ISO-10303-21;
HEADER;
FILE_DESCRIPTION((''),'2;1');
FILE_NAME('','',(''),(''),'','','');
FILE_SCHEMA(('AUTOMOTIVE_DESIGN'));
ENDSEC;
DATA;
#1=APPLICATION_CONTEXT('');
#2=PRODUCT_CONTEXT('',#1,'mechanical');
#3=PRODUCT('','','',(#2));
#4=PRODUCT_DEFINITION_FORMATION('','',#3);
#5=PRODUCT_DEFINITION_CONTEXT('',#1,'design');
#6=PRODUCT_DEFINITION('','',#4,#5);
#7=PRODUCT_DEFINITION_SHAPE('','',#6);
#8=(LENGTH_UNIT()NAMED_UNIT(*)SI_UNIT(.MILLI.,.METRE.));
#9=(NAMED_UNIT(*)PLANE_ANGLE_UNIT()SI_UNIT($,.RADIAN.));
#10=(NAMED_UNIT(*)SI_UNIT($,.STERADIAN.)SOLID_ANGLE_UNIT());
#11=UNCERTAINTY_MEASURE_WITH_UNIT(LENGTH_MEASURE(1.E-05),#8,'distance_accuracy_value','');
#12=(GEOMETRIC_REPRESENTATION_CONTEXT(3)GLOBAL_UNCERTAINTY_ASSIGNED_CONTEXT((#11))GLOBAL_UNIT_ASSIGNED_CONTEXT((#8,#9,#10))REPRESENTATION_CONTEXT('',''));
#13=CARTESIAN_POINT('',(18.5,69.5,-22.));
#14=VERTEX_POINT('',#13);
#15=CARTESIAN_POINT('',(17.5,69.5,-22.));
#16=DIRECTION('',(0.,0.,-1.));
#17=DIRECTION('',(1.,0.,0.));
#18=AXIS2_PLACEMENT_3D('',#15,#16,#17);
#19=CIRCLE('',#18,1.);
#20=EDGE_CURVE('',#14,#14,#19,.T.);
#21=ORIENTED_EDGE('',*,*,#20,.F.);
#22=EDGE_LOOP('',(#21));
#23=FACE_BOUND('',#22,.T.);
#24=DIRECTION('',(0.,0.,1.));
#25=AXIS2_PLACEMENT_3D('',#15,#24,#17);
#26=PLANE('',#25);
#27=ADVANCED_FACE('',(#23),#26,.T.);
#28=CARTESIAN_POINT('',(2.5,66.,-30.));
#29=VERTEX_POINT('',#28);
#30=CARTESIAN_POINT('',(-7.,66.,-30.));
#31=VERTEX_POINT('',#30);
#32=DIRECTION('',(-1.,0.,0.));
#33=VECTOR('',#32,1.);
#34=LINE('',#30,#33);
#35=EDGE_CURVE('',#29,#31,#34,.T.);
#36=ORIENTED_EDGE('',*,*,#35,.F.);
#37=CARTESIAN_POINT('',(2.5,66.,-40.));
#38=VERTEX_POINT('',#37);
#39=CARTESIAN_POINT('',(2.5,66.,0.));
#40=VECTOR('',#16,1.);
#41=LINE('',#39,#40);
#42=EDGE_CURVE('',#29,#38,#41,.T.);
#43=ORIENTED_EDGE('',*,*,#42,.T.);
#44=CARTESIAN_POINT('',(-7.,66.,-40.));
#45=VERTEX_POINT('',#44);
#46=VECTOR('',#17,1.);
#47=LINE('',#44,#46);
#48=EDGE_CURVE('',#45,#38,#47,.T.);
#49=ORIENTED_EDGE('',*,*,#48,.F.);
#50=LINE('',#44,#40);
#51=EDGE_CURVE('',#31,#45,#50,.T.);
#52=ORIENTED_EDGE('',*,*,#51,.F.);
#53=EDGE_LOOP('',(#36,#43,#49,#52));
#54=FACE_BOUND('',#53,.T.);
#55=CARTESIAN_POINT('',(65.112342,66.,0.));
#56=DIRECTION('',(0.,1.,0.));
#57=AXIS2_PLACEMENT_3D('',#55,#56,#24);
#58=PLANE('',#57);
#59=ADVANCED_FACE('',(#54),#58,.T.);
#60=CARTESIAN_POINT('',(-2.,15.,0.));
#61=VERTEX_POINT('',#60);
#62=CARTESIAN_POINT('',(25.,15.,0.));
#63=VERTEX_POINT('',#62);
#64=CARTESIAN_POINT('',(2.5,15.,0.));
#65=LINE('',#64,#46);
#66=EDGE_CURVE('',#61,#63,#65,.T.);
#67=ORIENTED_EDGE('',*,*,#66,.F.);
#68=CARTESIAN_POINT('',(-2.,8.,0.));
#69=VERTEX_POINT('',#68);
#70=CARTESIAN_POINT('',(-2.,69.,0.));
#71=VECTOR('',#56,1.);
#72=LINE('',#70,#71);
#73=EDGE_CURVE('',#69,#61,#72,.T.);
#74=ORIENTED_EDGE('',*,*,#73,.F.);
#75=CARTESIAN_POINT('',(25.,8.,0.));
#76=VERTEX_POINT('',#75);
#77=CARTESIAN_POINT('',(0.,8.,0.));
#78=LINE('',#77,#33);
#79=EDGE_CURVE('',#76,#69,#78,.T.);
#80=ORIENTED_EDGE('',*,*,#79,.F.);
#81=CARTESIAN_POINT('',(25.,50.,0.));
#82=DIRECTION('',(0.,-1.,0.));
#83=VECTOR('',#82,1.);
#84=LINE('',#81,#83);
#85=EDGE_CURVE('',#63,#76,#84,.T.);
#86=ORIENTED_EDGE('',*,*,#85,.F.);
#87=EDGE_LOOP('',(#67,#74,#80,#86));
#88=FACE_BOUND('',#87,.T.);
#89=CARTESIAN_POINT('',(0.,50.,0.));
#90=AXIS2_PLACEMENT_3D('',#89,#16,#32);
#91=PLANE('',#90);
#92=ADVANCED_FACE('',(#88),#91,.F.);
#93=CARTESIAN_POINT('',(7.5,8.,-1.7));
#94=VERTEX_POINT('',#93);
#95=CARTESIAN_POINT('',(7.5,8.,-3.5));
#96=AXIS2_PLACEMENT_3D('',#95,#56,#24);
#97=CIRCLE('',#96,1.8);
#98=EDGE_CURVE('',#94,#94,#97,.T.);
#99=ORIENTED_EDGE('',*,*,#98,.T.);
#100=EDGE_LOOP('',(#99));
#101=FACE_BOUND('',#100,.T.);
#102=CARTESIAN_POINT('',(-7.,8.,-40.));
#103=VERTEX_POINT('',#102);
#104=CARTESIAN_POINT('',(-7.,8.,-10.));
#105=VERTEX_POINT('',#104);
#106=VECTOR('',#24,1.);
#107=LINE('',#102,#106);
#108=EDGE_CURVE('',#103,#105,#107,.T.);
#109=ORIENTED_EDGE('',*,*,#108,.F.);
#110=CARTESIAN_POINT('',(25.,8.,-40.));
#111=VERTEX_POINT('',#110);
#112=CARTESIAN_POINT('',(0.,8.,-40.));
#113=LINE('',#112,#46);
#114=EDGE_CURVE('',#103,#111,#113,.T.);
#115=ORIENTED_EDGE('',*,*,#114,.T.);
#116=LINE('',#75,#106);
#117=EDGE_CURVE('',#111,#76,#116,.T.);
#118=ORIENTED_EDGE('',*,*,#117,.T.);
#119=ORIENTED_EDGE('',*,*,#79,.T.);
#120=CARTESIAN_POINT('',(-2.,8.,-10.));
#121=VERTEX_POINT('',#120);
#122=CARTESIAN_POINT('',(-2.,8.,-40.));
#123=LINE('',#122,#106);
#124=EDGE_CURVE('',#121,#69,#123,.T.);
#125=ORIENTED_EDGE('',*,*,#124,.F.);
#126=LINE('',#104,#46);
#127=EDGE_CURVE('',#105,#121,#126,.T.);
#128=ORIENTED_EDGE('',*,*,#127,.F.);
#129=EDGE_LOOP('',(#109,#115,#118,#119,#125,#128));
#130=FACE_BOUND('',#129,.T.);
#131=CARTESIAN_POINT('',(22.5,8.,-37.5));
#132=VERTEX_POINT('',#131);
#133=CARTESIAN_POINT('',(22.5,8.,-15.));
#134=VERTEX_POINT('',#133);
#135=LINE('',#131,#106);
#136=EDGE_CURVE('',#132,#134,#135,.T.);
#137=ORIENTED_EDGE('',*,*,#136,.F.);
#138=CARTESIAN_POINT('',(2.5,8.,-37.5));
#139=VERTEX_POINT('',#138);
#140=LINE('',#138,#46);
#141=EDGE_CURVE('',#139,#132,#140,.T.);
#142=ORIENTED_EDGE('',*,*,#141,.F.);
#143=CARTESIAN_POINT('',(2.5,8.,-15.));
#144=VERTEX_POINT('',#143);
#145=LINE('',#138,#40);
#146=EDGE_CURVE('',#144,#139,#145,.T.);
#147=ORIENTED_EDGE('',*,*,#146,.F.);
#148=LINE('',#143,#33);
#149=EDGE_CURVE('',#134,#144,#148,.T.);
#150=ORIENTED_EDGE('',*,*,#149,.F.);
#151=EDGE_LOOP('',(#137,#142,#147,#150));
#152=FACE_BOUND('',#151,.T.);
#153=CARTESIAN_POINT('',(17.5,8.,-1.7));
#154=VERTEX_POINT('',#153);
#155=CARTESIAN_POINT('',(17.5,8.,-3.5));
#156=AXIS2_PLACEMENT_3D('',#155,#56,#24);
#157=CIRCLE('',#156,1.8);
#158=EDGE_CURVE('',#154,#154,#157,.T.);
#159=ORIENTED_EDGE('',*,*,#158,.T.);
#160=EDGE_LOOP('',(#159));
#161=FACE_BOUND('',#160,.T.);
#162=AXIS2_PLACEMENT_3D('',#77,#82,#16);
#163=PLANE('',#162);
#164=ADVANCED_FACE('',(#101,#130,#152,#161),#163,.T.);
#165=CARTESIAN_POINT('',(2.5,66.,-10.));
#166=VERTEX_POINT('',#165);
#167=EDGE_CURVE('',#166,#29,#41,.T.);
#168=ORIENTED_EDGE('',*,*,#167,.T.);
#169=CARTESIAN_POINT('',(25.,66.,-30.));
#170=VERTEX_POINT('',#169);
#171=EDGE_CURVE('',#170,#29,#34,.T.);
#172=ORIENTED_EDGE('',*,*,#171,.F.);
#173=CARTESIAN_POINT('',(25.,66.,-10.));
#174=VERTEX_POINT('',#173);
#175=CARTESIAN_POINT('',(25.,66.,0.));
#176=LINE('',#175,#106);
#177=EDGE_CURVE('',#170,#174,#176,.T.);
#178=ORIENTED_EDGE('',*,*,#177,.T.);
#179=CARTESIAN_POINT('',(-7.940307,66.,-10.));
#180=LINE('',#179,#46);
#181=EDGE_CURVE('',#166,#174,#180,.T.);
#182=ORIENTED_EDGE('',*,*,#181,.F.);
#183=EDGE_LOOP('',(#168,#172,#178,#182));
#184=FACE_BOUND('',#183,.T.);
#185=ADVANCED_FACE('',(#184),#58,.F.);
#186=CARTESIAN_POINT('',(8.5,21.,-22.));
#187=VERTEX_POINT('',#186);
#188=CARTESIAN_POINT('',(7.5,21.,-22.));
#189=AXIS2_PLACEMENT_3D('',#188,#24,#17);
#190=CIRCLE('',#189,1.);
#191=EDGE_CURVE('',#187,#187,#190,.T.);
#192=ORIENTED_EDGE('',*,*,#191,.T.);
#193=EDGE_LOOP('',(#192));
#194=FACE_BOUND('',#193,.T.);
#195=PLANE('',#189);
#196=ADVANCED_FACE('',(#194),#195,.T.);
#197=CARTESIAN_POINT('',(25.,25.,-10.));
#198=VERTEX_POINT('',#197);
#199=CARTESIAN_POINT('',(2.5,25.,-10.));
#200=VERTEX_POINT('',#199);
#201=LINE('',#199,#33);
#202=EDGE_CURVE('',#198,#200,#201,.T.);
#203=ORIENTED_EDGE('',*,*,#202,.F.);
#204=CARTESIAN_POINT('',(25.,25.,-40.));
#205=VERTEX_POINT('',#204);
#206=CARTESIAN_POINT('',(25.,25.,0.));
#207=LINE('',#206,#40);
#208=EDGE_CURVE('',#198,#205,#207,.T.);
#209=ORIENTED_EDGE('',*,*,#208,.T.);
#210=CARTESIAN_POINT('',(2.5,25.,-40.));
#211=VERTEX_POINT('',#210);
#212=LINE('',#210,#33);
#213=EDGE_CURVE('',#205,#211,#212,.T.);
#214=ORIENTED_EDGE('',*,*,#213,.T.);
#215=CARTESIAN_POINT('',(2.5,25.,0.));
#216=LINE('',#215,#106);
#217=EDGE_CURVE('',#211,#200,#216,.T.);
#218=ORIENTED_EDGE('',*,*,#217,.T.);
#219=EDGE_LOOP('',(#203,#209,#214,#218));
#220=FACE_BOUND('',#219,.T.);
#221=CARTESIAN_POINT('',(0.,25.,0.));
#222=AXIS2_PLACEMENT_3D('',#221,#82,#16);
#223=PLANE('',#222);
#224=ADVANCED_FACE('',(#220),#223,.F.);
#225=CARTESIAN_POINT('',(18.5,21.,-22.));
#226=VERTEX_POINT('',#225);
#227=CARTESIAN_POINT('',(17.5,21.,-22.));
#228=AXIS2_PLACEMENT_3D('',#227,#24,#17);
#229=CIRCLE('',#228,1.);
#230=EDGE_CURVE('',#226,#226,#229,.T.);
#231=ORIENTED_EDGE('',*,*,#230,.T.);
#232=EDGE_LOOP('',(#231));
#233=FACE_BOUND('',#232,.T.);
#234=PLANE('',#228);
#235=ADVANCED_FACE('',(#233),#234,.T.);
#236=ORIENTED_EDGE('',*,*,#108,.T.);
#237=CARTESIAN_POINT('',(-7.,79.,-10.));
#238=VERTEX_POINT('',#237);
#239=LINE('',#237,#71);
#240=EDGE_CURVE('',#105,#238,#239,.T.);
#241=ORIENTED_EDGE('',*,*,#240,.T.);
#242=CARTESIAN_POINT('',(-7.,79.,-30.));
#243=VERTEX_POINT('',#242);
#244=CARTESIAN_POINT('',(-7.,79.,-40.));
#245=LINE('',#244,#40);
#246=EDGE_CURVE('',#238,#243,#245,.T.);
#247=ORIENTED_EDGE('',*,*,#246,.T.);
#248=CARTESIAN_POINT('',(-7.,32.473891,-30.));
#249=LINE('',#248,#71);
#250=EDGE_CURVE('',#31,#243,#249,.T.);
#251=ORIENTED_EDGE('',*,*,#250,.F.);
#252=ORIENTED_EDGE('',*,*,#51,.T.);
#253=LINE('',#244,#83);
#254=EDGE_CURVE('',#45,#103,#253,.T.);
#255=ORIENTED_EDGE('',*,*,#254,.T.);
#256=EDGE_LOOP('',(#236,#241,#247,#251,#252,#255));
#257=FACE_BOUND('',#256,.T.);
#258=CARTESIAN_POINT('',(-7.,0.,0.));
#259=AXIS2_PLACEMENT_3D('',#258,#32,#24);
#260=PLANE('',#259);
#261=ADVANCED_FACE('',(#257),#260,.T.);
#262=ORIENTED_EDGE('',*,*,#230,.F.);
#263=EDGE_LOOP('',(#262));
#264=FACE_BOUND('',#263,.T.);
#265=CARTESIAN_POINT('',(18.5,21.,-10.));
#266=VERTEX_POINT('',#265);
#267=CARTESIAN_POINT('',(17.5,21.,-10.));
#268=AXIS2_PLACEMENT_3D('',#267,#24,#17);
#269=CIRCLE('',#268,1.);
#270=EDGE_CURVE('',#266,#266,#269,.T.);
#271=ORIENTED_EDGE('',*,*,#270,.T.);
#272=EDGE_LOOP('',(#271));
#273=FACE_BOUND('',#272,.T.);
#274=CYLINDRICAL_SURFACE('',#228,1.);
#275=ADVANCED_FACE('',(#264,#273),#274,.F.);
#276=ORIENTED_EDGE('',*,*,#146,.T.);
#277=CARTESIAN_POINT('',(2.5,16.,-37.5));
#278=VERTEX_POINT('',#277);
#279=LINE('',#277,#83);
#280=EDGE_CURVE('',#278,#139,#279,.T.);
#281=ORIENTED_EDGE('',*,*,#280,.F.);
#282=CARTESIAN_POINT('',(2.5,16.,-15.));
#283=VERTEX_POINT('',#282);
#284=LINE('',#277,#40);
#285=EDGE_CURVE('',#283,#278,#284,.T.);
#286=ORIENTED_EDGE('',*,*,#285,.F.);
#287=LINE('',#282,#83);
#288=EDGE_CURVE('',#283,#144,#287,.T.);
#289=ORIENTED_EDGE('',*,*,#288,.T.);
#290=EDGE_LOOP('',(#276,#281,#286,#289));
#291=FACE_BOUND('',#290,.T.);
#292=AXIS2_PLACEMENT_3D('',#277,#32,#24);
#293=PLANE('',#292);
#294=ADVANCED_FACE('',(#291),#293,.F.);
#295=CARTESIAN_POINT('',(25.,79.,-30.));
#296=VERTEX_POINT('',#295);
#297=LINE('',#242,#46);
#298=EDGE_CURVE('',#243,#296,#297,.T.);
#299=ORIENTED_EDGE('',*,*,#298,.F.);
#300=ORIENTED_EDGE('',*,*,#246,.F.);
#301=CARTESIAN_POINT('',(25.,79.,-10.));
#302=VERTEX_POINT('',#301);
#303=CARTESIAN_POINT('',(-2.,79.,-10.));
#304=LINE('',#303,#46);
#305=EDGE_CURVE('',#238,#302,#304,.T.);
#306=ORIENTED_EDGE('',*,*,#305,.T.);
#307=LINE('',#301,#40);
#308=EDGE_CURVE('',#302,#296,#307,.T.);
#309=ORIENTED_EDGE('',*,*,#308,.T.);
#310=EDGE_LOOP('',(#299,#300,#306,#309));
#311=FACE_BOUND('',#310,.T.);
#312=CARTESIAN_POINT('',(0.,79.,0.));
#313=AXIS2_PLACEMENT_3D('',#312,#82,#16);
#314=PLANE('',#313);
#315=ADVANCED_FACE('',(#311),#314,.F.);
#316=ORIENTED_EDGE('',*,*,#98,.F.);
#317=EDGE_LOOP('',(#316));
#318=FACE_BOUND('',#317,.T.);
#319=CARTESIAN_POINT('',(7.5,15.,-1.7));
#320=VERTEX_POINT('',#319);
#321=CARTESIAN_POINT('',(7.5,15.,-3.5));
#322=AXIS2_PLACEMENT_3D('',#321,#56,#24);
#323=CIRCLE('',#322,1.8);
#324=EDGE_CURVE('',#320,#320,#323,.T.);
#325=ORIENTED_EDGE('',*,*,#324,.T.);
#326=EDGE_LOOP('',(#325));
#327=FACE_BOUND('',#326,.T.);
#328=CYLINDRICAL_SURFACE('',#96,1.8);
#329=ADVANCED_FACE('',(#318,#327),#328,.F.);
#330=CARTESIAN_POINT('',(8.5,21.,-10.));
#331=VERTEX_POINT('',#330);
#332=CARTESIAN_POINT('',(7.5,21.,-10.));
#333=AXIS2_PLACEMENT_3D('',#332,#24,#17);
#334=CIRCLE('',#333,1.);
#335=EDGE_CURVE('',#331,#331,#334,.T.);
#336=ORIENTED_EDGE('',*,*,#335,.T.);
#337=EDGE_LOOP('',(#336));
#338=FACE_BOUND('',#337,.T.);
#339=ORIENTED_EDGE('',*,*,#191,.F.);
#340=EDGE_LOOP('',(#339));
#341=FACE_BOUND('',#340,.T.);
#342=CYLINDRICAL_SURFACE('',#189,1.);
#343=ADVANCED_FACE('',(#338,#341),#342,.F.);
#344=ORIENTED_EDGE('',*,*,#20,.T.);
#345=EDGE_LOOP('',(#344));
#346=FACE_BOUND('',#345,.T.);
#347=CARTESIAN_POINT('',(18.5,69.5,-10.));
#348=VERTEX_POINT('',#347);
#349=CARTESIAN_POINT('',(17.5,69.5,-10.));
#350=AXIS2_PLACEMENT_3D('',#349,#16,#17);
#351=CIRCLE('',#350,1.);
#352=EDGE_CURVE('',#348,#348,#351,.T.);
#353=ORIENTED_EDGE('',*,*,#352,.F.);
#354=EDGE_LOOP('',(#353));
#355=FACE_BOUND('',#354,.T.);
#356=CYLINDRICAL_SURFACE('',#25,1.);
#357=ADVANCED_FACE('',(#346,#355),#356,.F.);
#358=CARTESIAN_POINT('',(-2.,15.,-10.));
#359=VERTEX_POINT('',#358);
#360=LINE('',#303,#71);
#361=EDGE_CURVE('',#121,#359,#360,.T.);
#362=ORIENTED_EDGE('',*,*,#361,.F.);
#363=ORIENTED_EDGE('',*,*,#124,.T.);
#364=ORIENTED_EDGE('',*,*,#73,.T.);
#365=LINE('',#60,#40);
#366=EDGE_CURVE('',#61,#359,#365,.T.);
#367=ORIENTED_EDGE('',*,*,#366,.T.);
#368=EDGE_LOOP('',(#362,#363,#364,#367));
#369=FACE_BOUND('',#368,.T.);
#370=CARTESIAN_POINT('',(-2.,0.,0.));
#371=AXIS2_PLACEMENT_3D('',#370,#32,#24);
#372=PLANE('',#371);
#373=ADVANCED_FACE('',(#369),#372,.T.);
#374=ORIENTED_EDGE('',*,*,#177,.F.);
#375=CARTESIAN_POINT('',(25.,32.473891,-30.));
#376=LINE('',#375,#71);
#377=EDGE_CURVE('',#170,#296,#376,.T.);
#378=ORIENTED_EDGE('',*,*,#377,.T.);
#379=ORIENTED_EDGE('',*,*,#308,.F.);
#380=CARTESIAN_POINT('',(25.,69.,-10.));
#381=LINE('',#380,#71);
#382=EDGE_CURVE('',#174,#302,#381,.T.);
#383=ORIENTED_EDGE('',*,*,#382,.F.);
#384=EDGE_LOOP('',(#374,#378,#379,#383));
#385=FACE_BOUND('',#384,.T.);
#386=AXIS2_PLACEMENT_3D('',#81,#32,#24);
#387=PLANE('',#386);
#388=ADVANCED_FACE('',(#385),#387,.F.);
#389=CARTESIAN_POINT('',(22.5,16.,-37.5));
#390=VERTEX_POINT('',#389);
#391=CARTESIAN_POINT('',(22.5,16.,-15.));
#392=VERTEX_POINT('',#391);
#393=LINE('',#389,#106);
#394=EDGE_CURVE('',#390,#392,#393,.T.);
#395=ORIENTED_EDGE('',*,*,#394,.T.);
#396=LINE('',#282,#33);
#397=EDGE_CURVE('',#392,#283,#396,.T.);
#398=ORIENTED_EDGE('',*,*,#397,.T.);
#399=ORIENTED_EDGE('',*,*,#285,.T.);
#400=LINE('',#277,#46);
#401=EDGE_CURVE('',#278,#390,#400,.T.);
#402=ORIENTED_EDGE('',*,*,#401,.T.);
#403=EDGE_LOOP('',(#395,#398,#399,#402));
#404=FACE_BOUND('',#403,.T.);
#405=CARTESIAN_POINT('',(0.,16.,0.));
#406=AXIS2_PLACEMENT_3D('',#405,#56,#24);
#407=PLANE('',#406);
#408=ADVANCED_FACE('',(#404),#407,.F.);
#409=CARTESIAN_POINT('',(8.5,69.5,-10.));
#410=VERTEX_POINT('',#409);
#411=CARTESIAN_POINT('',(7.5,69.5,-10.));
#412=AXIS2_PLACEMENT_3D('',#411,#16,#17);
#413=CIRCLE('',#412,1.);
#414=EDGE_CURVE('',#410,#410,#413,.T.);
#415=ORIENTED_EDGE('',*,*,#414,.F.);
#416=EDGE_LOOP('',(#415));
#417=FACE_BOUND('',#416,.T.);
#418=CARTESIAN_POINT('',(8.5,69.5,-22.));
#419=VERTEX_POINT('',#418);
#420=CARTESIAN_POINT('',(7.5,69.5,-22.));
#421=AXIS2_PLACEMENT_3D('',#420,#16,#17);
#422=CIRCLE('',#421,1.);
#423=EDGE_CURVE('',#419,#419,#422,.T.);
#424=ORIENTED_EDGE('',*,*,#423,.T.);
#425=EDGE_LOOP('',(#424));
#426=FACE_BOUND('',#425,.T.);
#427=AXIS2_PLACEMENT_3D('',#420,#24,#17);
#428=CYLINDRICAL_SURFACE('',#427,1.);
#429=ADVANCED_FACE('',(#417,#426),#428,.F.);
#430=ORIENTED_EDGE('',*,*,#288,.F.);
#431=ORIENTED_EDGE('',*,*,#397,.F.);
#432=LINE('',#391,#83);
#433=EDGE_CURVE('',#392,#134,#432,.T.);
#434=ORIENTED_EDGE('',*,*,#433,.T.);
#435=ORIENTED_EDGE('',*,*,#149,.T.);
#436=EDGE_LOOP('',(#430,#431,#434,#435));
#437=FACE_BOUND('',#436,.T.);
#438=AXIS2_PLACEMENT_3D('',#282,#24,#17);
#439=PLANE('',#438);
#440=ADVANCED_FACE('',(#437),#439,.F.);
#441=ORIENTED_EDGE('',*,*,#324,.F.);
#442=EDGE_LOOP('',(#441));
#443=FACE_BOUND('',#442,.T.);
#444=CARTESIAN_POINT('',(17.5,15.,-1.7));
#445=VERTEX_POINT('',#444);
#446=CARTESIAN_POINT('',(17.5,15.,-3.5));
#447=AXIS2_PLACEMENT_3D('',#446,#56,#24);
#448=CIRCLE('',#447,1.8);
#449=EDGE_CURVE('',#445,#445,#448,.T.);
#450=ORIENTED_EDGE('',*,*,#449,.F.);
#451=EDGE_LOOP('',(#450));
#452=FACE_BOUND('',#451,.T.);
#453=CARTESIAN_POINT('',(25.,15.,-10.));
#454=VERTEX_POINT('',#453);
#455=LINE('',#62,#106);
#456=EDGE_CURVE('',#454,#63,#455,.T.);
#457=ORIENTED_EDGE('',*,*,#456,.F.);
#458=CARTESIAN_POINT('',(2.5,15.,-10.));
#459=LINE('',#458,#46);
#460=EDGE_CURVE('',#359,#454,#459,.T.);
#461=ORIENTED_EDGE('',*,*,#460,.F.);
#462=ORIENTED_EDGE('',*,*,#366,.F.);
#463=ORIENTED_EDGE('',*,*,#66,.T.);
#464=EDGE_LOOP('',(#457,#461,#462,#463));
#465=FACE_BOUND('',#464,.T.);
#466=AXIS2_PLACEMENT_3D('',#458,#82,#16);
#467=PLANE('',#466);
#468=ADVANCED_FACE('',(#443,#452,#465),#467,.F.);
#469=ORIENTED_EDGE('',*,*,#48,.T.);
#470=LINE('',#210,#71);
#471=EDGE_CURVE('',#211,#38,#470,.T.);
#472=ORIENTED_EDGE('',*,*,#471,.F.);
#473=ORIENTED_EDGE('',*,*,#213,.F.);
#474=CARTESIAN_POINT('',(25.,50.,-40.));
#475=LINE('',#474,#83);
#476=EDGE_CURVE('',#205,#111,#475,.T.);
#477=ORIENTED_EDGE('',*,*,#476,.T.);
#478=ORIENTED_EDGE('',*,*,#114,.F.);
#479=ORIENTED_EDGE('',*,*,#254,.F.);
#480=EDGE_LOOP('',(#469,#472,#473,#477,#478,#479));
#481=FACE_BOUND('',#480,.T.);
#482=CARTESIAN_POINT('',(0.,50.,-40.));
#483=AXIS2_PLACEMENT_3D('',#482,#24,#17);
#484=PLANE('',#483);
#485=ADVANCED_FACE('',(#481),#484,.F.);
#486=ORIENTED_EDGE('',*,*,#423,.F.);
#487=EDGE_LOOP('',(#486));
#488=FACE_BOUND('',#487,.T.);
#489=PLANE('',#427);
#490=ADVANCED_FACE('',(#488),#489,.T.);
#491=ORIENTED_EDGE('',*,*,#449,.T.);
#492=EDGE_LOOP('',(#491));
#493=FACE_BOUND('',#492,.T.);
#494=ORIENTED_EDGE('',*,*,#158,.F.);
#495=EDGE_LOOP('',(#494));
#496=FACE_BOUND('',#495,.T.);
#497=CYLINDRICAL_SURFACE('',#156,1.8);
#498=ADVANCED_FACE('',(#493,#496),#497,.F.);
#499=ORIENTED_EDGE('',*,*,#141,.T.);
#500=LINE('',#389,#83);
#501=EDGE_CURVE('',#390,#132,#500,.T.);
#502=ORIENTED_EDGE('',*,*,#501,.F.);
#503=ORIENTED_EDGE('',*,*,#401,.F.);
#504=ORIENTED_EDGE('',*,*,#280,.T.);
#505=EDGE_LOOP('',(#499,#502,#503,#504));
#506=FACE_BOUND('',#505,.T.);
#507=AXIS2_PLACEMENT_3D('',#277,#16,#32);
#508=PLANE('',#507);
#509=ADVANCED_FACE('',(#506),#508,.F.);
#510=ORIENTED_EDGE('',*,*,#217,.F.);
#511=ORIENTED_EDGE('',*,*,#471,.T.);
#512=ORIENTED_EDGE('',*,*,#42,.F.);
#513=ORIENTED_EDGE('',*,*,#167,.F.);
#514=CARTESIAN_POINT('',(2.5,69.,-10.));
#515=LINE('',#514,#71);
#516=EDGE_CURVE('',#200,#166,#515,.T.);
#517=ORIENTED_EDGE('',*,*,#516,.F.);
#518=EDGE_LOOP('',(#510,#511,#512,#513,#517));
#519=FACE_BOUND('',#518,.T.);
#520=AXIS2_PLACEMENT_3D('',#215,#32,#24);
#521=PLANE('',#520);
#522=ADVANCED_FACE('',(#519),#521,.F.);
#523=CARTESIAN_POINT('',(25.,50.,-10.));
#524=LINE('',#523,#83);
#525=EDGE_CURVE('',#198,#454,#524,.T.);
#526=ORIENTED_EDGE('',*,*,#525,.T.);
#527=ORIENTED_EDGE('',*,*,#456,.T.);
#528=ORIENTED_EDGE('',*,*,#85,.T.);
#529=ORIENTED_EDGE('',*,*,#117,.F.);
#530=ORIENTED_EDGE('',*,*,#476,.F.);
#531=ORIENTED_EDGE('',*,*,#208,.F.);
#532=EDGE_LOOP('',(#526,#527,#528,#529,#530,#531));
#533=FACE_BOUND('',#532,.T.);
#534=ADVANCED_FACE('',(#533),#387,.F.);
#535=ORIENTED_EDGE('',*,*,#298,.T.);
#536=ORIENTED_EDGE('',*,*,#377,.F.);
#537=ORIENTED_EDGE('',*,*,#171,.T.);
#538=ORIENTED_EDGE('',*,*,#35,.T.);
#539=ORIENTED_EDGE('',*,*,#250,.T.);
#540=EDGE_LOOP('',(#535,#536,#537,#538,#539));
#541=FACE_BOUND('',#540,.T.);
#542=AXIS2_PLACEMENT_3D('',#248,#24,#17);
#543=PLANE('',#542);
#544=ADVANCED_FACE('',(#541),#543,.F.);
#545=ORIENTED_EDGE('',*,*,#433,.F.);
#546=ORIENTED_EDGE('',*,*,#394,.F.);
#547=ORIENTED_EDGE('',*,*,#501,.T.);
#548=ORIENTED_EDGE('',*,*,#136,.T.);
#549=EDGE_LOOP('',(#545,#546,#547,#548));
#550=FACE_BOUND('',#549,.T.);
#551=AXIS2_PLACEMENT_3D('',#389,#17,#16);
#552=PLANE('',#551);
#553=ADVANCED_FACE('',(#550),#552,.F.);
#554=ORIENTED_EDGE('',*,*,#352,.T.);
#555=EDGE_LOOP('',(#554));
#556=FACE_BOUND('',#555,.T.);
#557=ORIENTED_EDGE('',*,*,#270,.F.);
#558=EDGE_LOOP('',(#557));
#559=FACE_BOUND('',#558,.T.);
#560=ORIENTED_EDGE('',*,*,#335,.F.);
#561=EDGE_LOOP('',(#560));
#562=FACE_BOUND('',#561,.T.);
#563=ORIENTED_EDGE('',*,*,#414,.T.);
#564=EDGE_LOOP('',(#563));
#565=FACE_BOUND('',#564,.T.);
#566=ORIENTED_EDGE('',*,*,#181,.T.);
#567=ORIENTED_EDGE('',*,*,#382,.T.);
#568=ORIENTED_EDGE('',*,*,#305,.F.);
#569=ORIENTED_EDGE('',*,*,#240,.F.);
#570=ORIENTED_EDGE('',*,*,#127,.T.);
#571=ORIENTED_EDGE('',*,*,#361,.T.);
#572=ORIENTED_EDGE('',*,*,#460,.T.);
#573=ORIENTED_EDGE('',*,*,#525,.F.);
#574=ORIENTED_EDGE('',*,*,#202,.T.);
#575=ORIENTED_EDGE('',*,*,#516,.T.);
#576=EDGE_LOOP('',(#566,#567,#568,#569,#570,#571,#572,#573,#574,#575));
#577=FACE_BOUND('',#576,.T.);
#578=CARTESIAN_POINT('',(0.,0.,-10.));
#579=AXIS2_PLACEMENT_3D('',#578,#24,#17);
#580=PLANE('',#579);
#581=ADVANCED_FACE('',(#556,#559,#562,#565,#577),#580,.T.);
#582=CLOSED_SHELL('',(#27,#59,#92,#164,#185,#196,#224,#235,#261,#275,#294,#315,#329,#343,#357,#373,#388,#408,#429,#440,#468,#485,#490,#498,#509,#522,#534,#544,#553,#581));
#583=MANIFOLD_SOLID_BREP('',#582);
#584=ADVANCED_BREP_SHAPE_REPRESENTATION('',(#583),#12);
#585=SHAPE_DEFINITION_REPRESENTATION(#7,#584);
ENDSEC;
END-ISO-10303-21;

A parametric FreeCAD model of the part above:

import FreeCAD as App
import Part
import Sketcher

V = App.Vector

doc = App.newDocument("Part")
body = doc.addObject("PartDesign::Body", "Body")

sketch1 = doc.addObject("Sketcher::SketchObject", "Sketch")
body.addObject(sketch1)
sketch1.AttachmentSupport = (doc.XZ_Plane, [""])
sketch1.MapMode = "FlatFace"
sketch1.addGeometry(Part.LineSegment(V(0, -40, 0), V(0, 0, 0)), False)
sketch1.addGeometry(Part.LineSegment(V(0, 0, 0), V(25, 0, 0)), False)
sketch1.addGeometry(Part.LineSegment(V(25, 0, 0), V(25, -40, 0)), False)
sketch1.addGeometry(Part.LineSegment(V(25, -40, 0), V(0, -40, 0)), False)
sketch1.addConstraint(Sketcher.Constraint("Coincident", 0, 2, 1, 1))
sketch1.addConstraint(Sketcher.Constraint("Coincident", 1, 2, 2, 1))
sketch1.addConstraint(Sketcher.Constraint("Coincident", 2, 2, 3, 1))
sketch1.addConstraint(Sketcher.Constraint("Coincident", 3, 2, 0, 1))
sketch1.addConstraint(Sketcher.Constraint("Vertical", 0))
sketch1.addConstraint(Sketcher.Constraint("Horizontal", 1))
sketch1.addConstraint(Sketcher.Constraint("Vertical", 2))
sketch1.addConstraint(Sketcher.Constraint("Horizontal", 3))
sketch1.addConstraint(Sketcher.Constraint("Coincident", 0, 2, -1, 1))
sketch1.addConstraint(Sketcher.Constraint("DistanceX", 1, 1, 1, 2, 25.0))
sketch1.addConstraint(Sketcher.Constraint("DistanceY", 0, 1, 0, 2, 40.0))
pad1 = doc.addObject("PartDesign::Pad", "Pad")
body.addObject(pad1)
pad1.Profile = sketch1
pad1.Length = 50
pad1.Reversed = True

sketch2 = doc.addObject("Sketcher::SketchObject", "Sketch001")
body.addObject(sketch2)
sketch2.AttachmentSupport = (doc.XZ_Plane, [""])
sketch2.MapMode = "FlatFace"
sketch2.AttachmentOffset = App.Placement(V(0, 0, -50), App.Rotation())
sketch2.addGeometry(Part.LineSegment(V(2, -40, 0), V(2, 0, 0)), False)
sketch2.addGeometry(Part.LineSegment(V(2, 0, 0), V(25, 0, 0)), False)
sketch2.addGeometry(Part.LineSegment(V(25, 0, 0), V(25, -40, 0)), False)
sketch2.addGeometry(Part.LineSegment(V(25, -40, 0), V(2, -40, 0)), False)
sketch2.addConstraint(Sketcher.Constraint("Coincident", 0, 2, 1, 1))
sketch2.addConstraint(Sketcher.Constraint("Coincident", 1, 2, 2, 1))
sketch2.addConstraint(Sketcher.Constraint("Coincident", 2, 2, 3, 1))
sketch2.addConstraint(Sketcher.Constraint("Coincident", 3, 2, 0, 1))
sketch2.addConstraint(Sketcher.Constraint("Vertical", 0))
sketch2.addConstraint(Sketcher.Constraint("Horizontal", 1))
sketch2.addConstraint(Sketcher.Constraint("Vertical", 2))
sketch2.addConstraint(Sketcher.Constraint("Horizontal", 3))
sketch2.addConstraint(Sketcher.Constraint("PointOnObject", 0, 2, -1))
sketch2.addConstraint(Sketcher.Constraint("DistanceY", 0, 1, 0, 2, 40.0))
sketch2.addConstraint(Sketcher.Constraint("DistanceX", 1, 1, 1, 2, 22.5))
sketch2.addConstraint(Sketcher.Constraint("DistanceX", -1, 1, 1, 2, 25.0))
pocket1 = doc.addObject("PartDesign::Pocket", "Pocket")
body.addObject(pocket1)
pocket1.Profile = sketch2
pocket1.Length = 25
pocket1.Reversed = True

sketch3 = doc.addObject("Sketcher::SketchObject", "Sketch002")
body.addObject(sketch3)
sketch3.AttachmentSupport = (doc.XY_Plane, [""])
sketch3.MapMode = "FlatFace"
sketch3.addGeometry(Part.LineSegment(V(2, 25, 0), V(2, 15, 0)), False)
sketch3.addGeometry(Part.LineSegment(V(2, 15, 0), V(22, 15, 0)), False)
sketch3.addGeometry(Part.LineSegment(V(22, 15, 0), V(22, 25, 0)), False)
sketch3.addGeometry(Part.LineSegment(V(22, 25, 0), V(2, 25, 0)), False)
sketch3.addConstraint(Sketcher.Constraint("Coincident", 0, 2, 1, 1))
sketch3.addConstraint(Sketcher.Constraint("Coincident", 1, 2, 2, 1))
sketch3.addConstraint(Sketcher.Constraint("Coincident", 2, 2, 3, 1))
sketch3.addConstraint(Sketcher.Constraint("Coincident", 3, 2, 0, 1))
sketch3.addConstraint(Sketcher.Constraint("Vertical", 0))
sketch3.addConstraint(Sketcher.Constraint("Horizontal", 1))
sketch3.addConstraint(Sketcher.Constraint("Vertical", 2))
sketch3.addConstraint(Sketcher.Constraint("Horizontal", 3))
sketch3.addConstraint(Sketcher.Constraint("DistanceX", 1, 1, 1, 2, 20.0))
sketch3.addConstraint(Sketcher.Constraint("DistanceY", 0, 2, 0, 1, 10.0))
sketch3.addConstraint(Sketcher.Constraint("DistanceY", -1, 1, 0, 2, 15.0))
sketch3.addConstraint(Sketcher.Constraint("DistanceX", -1, 1, 0, 2, 2.5))
pocket2 = doc.addObject("PartDesign::Pocket", "Pocket001")
body.addObject(pocket2)
pocket2.Profile = sketch3
pocket2.Length = 10

sketch4 = doc.addObject("Sketcher::SketchObject", "Sketch003")
body.addObject(sketch4)
sketch4.AttachmentSupport = (doc.XY_Plane, [""])
sketch4.MapMode = "FlatFace"
sketch4.AttachmentOffset = App.Placement(V(0, 0, -10), App.Rotation())
sketch4.addGeometry(Part.Circle(V(7.5, 21, 0), V(0, 0, 1), 1), False)
sketch4.addGeometry(Part.Circle(V(17.5, 21, 0), V(0, 0, 1), 1), False)
sketch4.addConstraint(Sketcher.Constraint("Equal", 0, 1))
sketch4.addConstraint(Sketcher.Constraint("Horizontal", 0, 3, 1, 3))
sketch4.addConstraint(Sketcher.Constraint("Diameter", 0, 2.0))
sketch4.addConstraint(Sketcher.Constraint("DistanceY", -1, 1, 0, 3, 21.0))
sketch4.addConstraint(Sketcher.Constraint("DistanceX", 0, 3, 1, 3, 10.0))
sketch4.addConstraint(Sketcher.Constraint("DistanceX", -1, 1, 0, 3, 7.5))
pocket3 = doc.addObject("PartDesign::Pocket", "Pocket002")
body.addObject(pocket3)
pocket3.Profile = sketch4
pocket3.Length = 12

sketch5 = doc.addObject("Sketcher::SketchObject", "Sketch004")
body.addObject(sketch5)
sketch5.AttachmentSupport = (doc.XZ_Plane, [""])
sketch5.MapMode = "FlatFace"
sketch5.addGeometry(Part.LineSegment(V(0, 0, 0), V(0, -40, 0)), False)
sketch5.addGeometry(Part.LineSegment(V(0, -40, 0), V(25, -40, 0)), False)
sketch5.addGeometry(Part.LineSegment(V(25, -40, 0), V(25, 0, 0)), False)
sketch5.addGeometry(Part.LineSegment(V(25, 0, 0), V(0, 0, 0)), False)
sketch5.addConstraint(Sketcher.Constraint("Coincident", 0, 2, 1, 1))
sketch5.addConstraint(Sketcher.Constraint("Coincident", 1, 2, 2, 1))
sketch5.addConstraint(Sketcher.Constraint("Coincident", 2, 2, 3, 1))
sketch5.addConstraint(Sketcher.Constraint("Coincident", 3, 2, 0, 1))
sketch5.addConstraint(Sketcher.Constraint("Vertical", 0))
sketch5.addConstraint(Sketcher.Constraint("Horizontal", 1))
sketch5.addConstraint(Sketcher.Constraint("Vertical", 2))
sketch5.addConstraint(Sketcher.Constraint("Horizontal", 3))
sketch5.addConstraint(Sketcher.Constraint("Coincident", 3, 2, -1, 1))
sketch5.addConstraint(Sketcher.Constraint("DistanceX", 1, 1, 1, 2, 25.0))
sketch5.addConstraint(Sketcher.Constraint("DistanceY", 0, 2, 0, 1, 40.0))
pocket4 = doc.addObject("PartDesign::Pocket", "Pocket003")
body.addObject(pocket4)
pocket4.Profile = sketch5
pocket4.Length = 8

sketch6 = doc.addObject("Sketcher::SketchObject", "Sketch005")
body.addObject(sketch6)
sketch6.AttachmentSupport = (doc.XZ_Plane, [""])
sketch6.MapMode = "FlatFace"
sketch6.AttachmentOffset = App.Placement(V(0, 0, -8), App.Rotation())
sketch6.addGeometry(Part.LineSegment(V(2, -15, 0), V(2, -38, 0)), False)
sketch6.addGeometry(Part.LineSegment(V(2, -38, 0), V(22, -38, 0)), False)
sketch6.addGeometry(Part.LineSegment(V(22, -38, 0), V(22, -15, 0)), False)
sketch6.addGeometry(Part.LineSegment(V(22, -15, 0), V(2, -15, 0)), False)
sketch6.addConstraint(Sketcher.Constraint("Coincident", 0, 2, 1, 1))
sketch6.addConstraint(Sketcher.Constraint("Coincident", 1, 2, 2, 1))
sketch6.addConstraint(Sketcher.Constraint("Coincident", 2, 2, 3, 1))
sketch6.addConstraint(Sketcher.Constraint("Coincident", 3, 2, 0, 1))
sketch6.addConstraint(Sketcher.Constraint("Vertical", 0))
sketch6.addConstraint(Sketcher.Constraint("Horizontal", 1))
sketch6.addConstraint(Sketcher.Constraint("Vertical", 2))
sketch6.addConstraint(Sketcher.Constraint("Horizontal", 3))
sketch6.addConstraint(Sketcher.Constraint("DistanceX", 1, 1, 1, 2, 20.0))
sketch6.addConstraint(Sketcher.Constraint("DistanceY", 0, 2, 0, 1, 22.5))
sketch6.addConstraint(Sketcher.Constraint("DistanceY", 2, 2, -1, 1, 15.0))
sketch6.addConstraint(Sketcher.Constraint("DistanceX", -1, 1, 0, 2, 2.5))
pocket5 = doc.addObject("PartDesign::Pocket", "Pocket004")
body.addObject(pocket5)
pocket5.Profile = sketch6
pocket5.Length = 8

sketch7 = doc.addObject("Sketcher::SketchObject", "Sketch006")
body.addObject(sketch7)
sketch7.AttachmentSupport = (doc.XZ_Plane, [""])
sketch7.MapMode = "FlatFace"
sketch7.AttachmentOffset = App.Placement(V(0, 0, -15), App.Rotation())
sketch7.addGeometry(Part.Circle(V(7.5, -3.5, 0), V(0, 0, 1), 1.8), False)
sketch7.addGeometry(Part.Circle(V(17.5, -3.5, 0), V(0, 0, 1), 1.8), False)
sketch7.addConstraint(Sketcher.Constraint("Equal", 0, 1))
sketch7.addConstraint(Sketcher.Constraint("Horizontal", 0, 3, 1, 3))
sketch7.addConstraint(Sketcher.Constraint("Diameter", 0, 3.6))
sketch7.addConstraint(Sketcher.Constraint("DistanceX", 0, 3, 1, 3, 10.0))
sketch7.addConstraint(Sketcher.Constraint("DistanceX", -1, 1, 0, 3, 7.5))
sketch7.addConstraint(Sketcher.Constraint("DistanceY", 0, 3, -1, 1, 3.5))
pocket6 = doc.addObject("PartDesign::Pocket", "Pocket005")
body.addObject(pocket6)
pocket6.Profile = sketch7
pocket6.Type = "ThroughAll"
pocket6.Reversed = True

sketch8 = doc.addObject("Sketcher::SketchObject", "Sketch007")
body.addObject(sketch8)
sketch8.AttachmentSupport = (doc.YZ_Plane, [""])
sketch8.MapMode = "FlatFace"
sketch8.AttachmentOffset = App.Placement(V(0, 0, 22.5), App.Rotation())
sketch8.addGeometry(Part.LineSegment(V(25, -10, 0), V(15, -10, 0)), False)
sketch8.addGeometry(Part.LineSegment(V(15, -10, 0), V(15, 0, 0)), False)
sketch8.addGeometry(Part.LineSegment(V(15, 0, 0), V(25, 0, 0)), False)
sketch8.addGeometry(Part.LineSegment(V(25, 0, 0), V(25, -10, 0)), False)
sketch8.addConstraint(Sketcher.Constraint("Coincident", 0, 2, 1, 1))
sketch8.addConstraint(Sketcher.Constraint("Coincident", 1, 2, 2, 1))
sketch8.addConstraint(Sketcher.Constraint("Coincident", 2, 2, 3, 1))
sketch8.addConstraint(Sketcher.Constraint("Coincident", 3, 2, 0, 1))
sketch8.addConstraint(Sketcher.Constraint("Horizontal", 0))
sketch8.addConstraint(Sketcher.Constraint("Vertical", 1))
sketch8.addConstraint(Sketcher.Constraint("Horizontal", 2))
sketch8.addConstraint(Sketcher.Constraint("Vertical", 3))
sketch8.addConstraint(Sketcher.Constraint("PointOnObject", 1, 2, -1))
sketch8.addConstraint(Sketcher.Constraint("Equal", 2, 1))
sketch8.addConstraint(Sketcher.Constraint("DistanceX", 0, 2, 0, 1, 10.0))
sketch8.addConstraint(Sketcher.Constraint("DistanceX", -1, 1, 0, 2, 15.0))
pocket7 = doc.addObject("PartDesign::Pocket", "Pocket006")
body.addObject(pocket7)
pocket7.Profile = sketch8
pocket7.Length = 10
pocket7.Reversed = True

sketch9 = doc.addObject("Sketcher::SketchObject", "Sketch008")
body.addObject(sketch9)
sketch9.AttachmentSupport = (doc.XZ_Plane, [""])
sketch9.MapMode = "FlatFace"
sketch9.AttachmentOffset = App.Placement(V(0, 0, -50), App.Rotation())
sketch9.addGeometry(Part.LineSegment(V(0, -40, 0), V(0, 0, 0)), False)
sketch9.addGeometry(Part.LineSegment(V(0, 0, 0), V(2.5, 0, 0)), False)
sketch9.addGeometry(Part.LineSegment(V(2.5, 0, 0), V(2.5, -40, 0)), False)
sketch9.addGeometry(Part.LineSegment(V(2.5, -40, 0), V(0, -40, 0)), False)
sketch9.addConstraint(Sketcher.Constraint("Coincident", 0, 2, 1, 1))
sketch9.addConstraint(Sketcher.Constraint("Coincident", 1, 2, 2, 1))
sketch9.addConstraint(Sketcher.Constraint("Coincident", 2, 2, 3, 1))
sketch9.addConstraint(Sketcher.Constraint("Coincident", 3, 2, 0, 1))
sketch9.addConstraint(Sketcher.Constraint("Vertical", 0))
sketch9.addConstraint(Sketcher.Constraint("Horizontal", 1))
sketch9.addConstraint(Sketcher.Constraint("Vertical", 2))
sketch9.addConstraint(Sketcher.Constraint("Horizontal", 3))
sketch9.addConstraint(Sketcher.Constraint("Coincident", 0, 2, -1, 1))
sketch9.addConstraint(Sketcher.Constraint("DistanceY", 0, 1, 0, 2, 40.0))
sketch9.addConstraint(Sketcher.Constraint("DistanceX", 1, 1, 1, 2, 2.5))
pad2 = doc.addObject("PartDesign::Pad", "Pad001")
body.addObject(pad2)
pad2.Profile = sketch9
pad2.Length = 19
pad2.Reversed = True

sketch10 = doc.addObject("Sketcher::SketchObject", "Sketch009")
body.addObject(sketch10)
sketch10.AttachmentSupport = (doc.YZ_Plane, [""])
sketch10.MapMode = "FlatFace"
sketch10.addGeometry(Part.LineSegment(V(69, -40, 0), V(8, -40, 0)), False)
sketch10.addGeometry(Part.LineSegment(V(8, -40, 0), V(8, 0, 0)), False)
sketch10.addGeometry(Part.LineSegment(V(8, 0, 0), V(69, 0, 0)), False)
sketch10.addGeometry(Part.LineSegment(V(69, 0, 0), V(69, -40, 0)), False)
sketch10.addConstraint(Sketcher.Constraint("Coincident", 0, 2, 1, 1))
sketch10.addConstraint(Sketcher.Constraint("Coincident", 1, 2, 2, 1))
sketch10.addConstraint(Sketcher.Constraint("Coincident", 2, 2, 3, 1))
sketch10.addConstraint(Sketcher.Constraint("Coincident", 3, 2, 0, 1))
sketch10.addConstraint(Sketcher.Constraint("Horizontal", 0))
sketch10.addConstraint(Sketcher.Constraint("Vertical", 1))
sketch10.addConstraint(Sketcher.Constraint("Horizontal", 2))
sketch10.addConstraint(Sketcher.Constraint("Vertical", 3))
sketch10.addConstraint(Sketcher.Constraint("PointOnObject", 1, 2, -1))
sketch10.addConstraint(Sketcher.Constraint("DistanceX", 0, 2, 0, 1, 61.0))
sketch10.addConstraint(Sketcher.Constraint("DistanceY", 1, 1, 1, 2, 40.0))
sketch10.addConstraint(Sketcher.Constraint("DistanceX", -1, 1, 0, 2, 8.0))
pad3 = doc.addObject("PartDesign::Pad", "Pad002")
body.addObject(pad3)
pad3.Profile = sketch10
pad3.Length = 2
pad3.Reversed = True

sketch11 = doc.addObject("Sketcher::SketchObject", "Sketch010")
body.addObject(sketch11)
sketch11.AttachmentSupport = (doc.YZ_Plane, [""])
sketch11.MapMode = "FlatFace"
sketch11.AttachmentOffset = App.Placement(V(0, 0, 2.5), App.Rotation())
sketch11.addGeometry(Part.LineSegment(V(69, 0, 0), V(66, 0, 0)), False)
sketch11.addGeometry(Part.LineSegment(V(66, 0, 0), V(66, -40, 0)), False)
sketch11.addGeometry(Part.LineSegment(V(66, -40, 0), V(69, -40, 0)), False)
sketch11.addGeometry(Part.LineSegment(V(69, -40, 0), V(69, 0, 0)), False)
sketch11.addConstraint(Sketcher.Constraint("Coincident", 0, 2, 1, 1))
sketch11.addConstraint(Sketcher.Constraint("Coincident", 1, 2, 2, 1))
sketch11.addConstraint(Sketcher.Constraint("Coincident", 2, 2, 3, 1))
sketch11.addConstraint(Sketcher.Constraint("Coincident", 3, 2, 0, 1))
sketch11.addConstraint(Sketcher.Constraint("Horizontal", 0))
sketch11.addConstraint(Sketcher.Constraint("Vertical", 1))
sketch11.addConstraint(Sketcher.Constraint("Horizontal", 2))
sketch11.addConstraint(Sketcher.Constraint("Vertical", 3))
sketch11.addConstraint(Sketcher.Constraint("PointOnObject", 0, 2, -1))
sketch11.addConstraint(Sketcher.Constraint("DistanceX", 0, 2, 0, 1, 3.0))
sketch11.addConstraint(Sketcher.Constraint("DistanceY", 1, 2, 1, 1, 40.0))
sketch11.addConstraint(Sketcher.Constraint("DistanceX", -1, 1, 0, 2, 66.0))
pad4 = doc.addObject("PartDesign::Pad", "Pad003")
body.addObject(pad4)
pad4.Profile = sketch11
pad4.Length = 22.5

sketch12 = doc.addObject("Sketcher::SketchObject", "Sketch011")
body.addObject(sketch12)
sketch12.AttachmentSupport = (doc.YZ_Plane, [""])
sketch12.MapMode = "FlatFace"
sketch12.AttachmentOffset = App.Placement(V(0, 0, 25), App.Rotation())
sketch12.addGeometry(Part.LineSegment(V(69, 0, 0), V(66, 0, 0)), False)
sketch12.addGeometry(Part.LineSegment(V(66, 0, 0), V(66, -10, 0)), False)
sketch12.addGeometry(Part.LineSegment(V(66, -10, 0), V(69, -10, 0)), False)
sketch12.addGeometry(Part.LineSegment(V(69, -10, 0), V(69, 0, 0)), False)
sketch12.addConstraint(Sketcher.Constraint("Coincident", 0, 2, 1, 1))
sketch12.addConstraint(Sketcher.Constraint("Coincident", 1, 2, 2, 1))
sketch12.addConstraint(Sketcher.Constraint("Coincident", 2, 2, 3, 1))
sketch12.addConstraint(Sketcher.Constraint("Coincident", 3, 2, 0, 1))
sketch12.addConstraint(Sketcher.Constraint("Horizontal", 0))
sketch12.addConstraint(Sketcher.Constraint("Vertical", 1))
sketch12.addConstraint(Sketcher.Constraint("Horizontal", 2))
sketch12.addConstraint(Sketcher.Constraint("Vertical", 3))
sketch12.addConstraint(Sketcher.Constraint("PointOnObject", 0, 2, -1))
sketch12.addConstraint(Sketcher.Constraint("DistanceX", 0, 2, 0, 1, 3.0))
sketch12.addConstraint(Sketcher.Constraint("DistanceY", 1, 2, 1, 1, 10.0))
sketch12.addConstraint(Sketcher.Constraint("DistanceX", -1, 1, 0, 2, 66.0))
pocket8 = doc.addObject("PartDesign::Pocket", "Pocket007")
body.addObject(pocket8)
pocket8.Profile = sketch12
pocket8.Length = 22.5

sketch13 = doc.addObject("Sketcher::SketchObject", "Sketch012")
body.addObject(sketch13)
sketch13.AttachmentSupport = (doc.YZ_Plane, [""])
sketch13.MapMode = "FlatFace"
sketch13.AttachmentOffset = App.Placement(V(0, 0, 2.5), App.Rotation())
sketch13.addGeometry(Part.LineSegment(V(69, 0, 0), V(15, 0, 0)), False)
sketch13.addGeometry(Part.LineSegment(V(15, 0, 0), V(15, -10, 0)), False)
sketch13.addGeometry(Part.LineSegment(V(15, -10, 0), V(69, -10, 0)), False)
sketch13.addGeometry(Part.LineSegment(V(69, -10, 0), V(69, 0, 0)), False)
sketch13.addConstraint(Sketcher.Constraint("Coincident", 0, 2, 1, 1))
sketch13.addConstraint(Sketcher.Constraint("Coincident", 1, 2, 2, 1))
sketch13.addConstraint(Sketcher.Constraint("Coincident", 2, 2, 3, 1))
sketch13.addConstraint(Sketcher.Constraint("Coincident", 3, 2, 0, 1))
sketch13.addConstraint(Sketcher.Constraint("Horizontal", 0))
sketch13.addConstraint(Sketcher.Constraint("Vertical", 1))
sketch13.addConstraint(Sketcher.Constraint("Horizontal", 2))
sketch13.addConstraint(Sketcher.Constraint("Vertical", 3))
sketch13.addConstraint(Sketcher.Constraint("PointOnObject", 0, 2, -1))
sketch13.addConstraint(Sketcher.Constraint("DistanceX", 0, 2, 0, 1, 54.0))
sketch13.addConstraint(Sketcher.Constraint("DistanceY", 1, 2, 1, 1, 10.0))
sketch13.addConstraint(Sketcher.Constraint("DistanceX", -1, 1, 0, 2, 15.0))
pocket9 = doc.addObject("PartDesign::Pocket", "Pocket008")
body.addObject(pocket9)
pocket9.Profile = sketch13
pocket9.Type = "ThroughAll"

sketch14 = doc.addObject("Sketcher::SketchObject", "Sketch013")
body.addObject(sketch14)
sketch14.AttachmentSupport = (doc.XZ_Plane, [""])
sketch14.MapMode = "FlatFace"
sketch14.AttachmentOffset = App.Placement(V(0, 0, -69), App.Rotation())
sketch14.addGeometry(Part.LineSegment(V(-2, -40, 0), V(-2, -10, 0)), False)
sketch14.addGeometry(Part.LineSegment(V(-2, -10, 0), V(25, -10, 0)), False)
sketch14.addGeometry(Part.LineSegment(V(25, -10, 0), V(25, -40, 0)), False)
sketch14.addGeometry(Part.LineSegment(V(25, -40, 0), V(-2, -40, 0)), False)
sketch14.addConstraint(Sketcher.Constraint("Coincident", 0, 2, 1, 1))
sketch14.addConstraint(Sketcher.Constraint("Coincident", 1, 2, 2, 1))
sketch14.addConstraint(Sketcher.Constraint("Coincident", 2, 2, 3, 1))
sketch14.addConstraint(Sketcher.Constraint("Coincident", 3, 2, 0, 1))
sketch14.addConstraint(Sketcher.Constraint("Vertical", 0))
sketch14.addConstraint(Sketcher.Constraint("Horizontal", 1))
sketch14.addConstraint(Sketcher.Constraint("Vertical", 2))
sketch14.addConstraint(Sketcher.Constraint("Horizontal", 3))
sketch14.addConstraint(Sketcher.Constraint("DistanceX", 1, 1, 1, 2, 27.0))
sketch14.addConstraint(Sketcher.Constraint("DistanceY", 0, 1, 0, 2, 30.0))
sketch14.addConstraint(Sketcher.Constraint("DistanceX", 0, 2, -1, 1, 2.0))
sketch14.addConstraint(Sketcher.Constraint("DistanceY", 0, 2, -1, 1, 10.0))
pad5 = doc.addObject("PartDesign::Pad", "Pad004")
body.addObject(pad5)
pad5.Profile = sketch14
pad5.Length = 10
pad5.Reversed = True
doc.recompute()

datumplane = doc.addObject("PartDesign::Plane", "DatumPlane")
body.addObject(datumplane)
datumplane.AttachmentSupport = (doc.XZ_Plane, [""])
datumplane.MapMode = "FlatFace"
datumplane.AttachmentOffset = App.Placement(V(0, 0, -45.25), App.Rotation())
mirrored = doc.addObject("PartDesign::Mirrored", "Mirrored")
body.addObject(mirrored)
mirrored.Originals = [pocket3]
mirrored.MirrorPlane = (datumplane, [""])
body.Tip = mirrored

sketch15 = doc.addObject("Sketcher::SketchObject", "Sketch014")
body.addObject(sketch15)
sketch15.AttachmentSupport = (doc.YZ_Plane, [""])
sketch15.MapMode = "FlatFace"
sketch15.AttachmentOffset = App.Placement(V(0, 0, -2), App.Rotation())
sketch15.addGeometry(Part.LineSegment(V(79, -40, 0), V(8, -40, 0)), False)
sketch15.addGeometry(Part.LineSegment(V(8, -40, 0), V(8, -10, 0)), False)
sketch15.addGeometry(Part.LineSegment(V(8, -10, 0), V(79, -10, 0)), False)
sketch15.addGeometry(Part.LineSegment(V(79, -10, 0), V(79, -40, 0)), False)
sketch15.addConstraint(Sketcher.Constraint("Coincident", 0, 2, 1, 1))
sketch15.addConstraint(Sketcher.Constraint("Coincident", 1, 2, 2, 1))
sketch15.addConstraint(Sketcher.Constraint("Coincident", 2, 2, 3, 1))
sketch15.addConstraint(Sketcher.Constraint("Coincident", 3, 2, 0, 1))
sketch15.addConstraint(Sketcher.Constraint("Horizontal", 0))
sketch15.addConstraint(Sketcher.Constraint("Vertical", 1))
sketch15.addConstraint(Sketcher.Constraint("Horizontal", 2))
sketch15.addConstraint(Sketcher.Constraint("Vertical", 3))
sketch15.addConstraint(Sketcher.Constraint("DistanceX", 0, 2, 0, 1, 71.0))
sketch15.addConstraint(Sketcher.Constraint("DistanceY", 1, 1, 1, 2, 30.0))
sketch15.addConstraint(Sketcher.Constraint("DistanceX", -1, 1, 0, 2, 8.0))
sketch15.addConstraint(Sketcher.Constraint("DistanceY", 0, 2, -1, 1, 40.0))
pad6 = doc.addObject("PartDesign::Pad", "Pad005")
body.addObject(pad6)
pad6.Profile = sketch15
pad6.Length = 5
pad6.Reversed = True

sketch16 = doc.addObject("Sketcher::SketchObject", "Sketch015")
body.addObject(sketch16)
sketch16.AttachmentSupport = (doc.XZ_Plane, [""])
sketch16.MapMode = "FlatFace"
sketch16.AttachmentOffset = App.Placement(V(0, 0, -79), App.Rotation())
sketch16.addGeometry(Part.LineSegment(V(-7, -40, 0), V(-7, -30, 0)), False)
sketch16.addGeometry(Part.LineSegment(V(-7, -30, 0), V(25, -30, 0)), False)
sketch16.addGeometry(Part.LineSegment(V(25, -30, 0), V(25, -40, 0)), False)
sketch16.addGeometry(Part.LineSegment(V(25, -40, 0), V(-7, -40, 0)), False)
sketch16.addConstraint(Sketcher.Constraint("Coincident", 0, 2, 1, 1))
sketch16.addConstraint(Sketcher.Constraint("Coincident", 1, 2, 2, 1))
sketch16.addConstraint(Sketcher.Constraint("Coincident", 2, 2, 3, 1))
sketch16.addConstraint(Sketcher.Constraint("Coincident", 3, 2, 0, 1))
sketch16.addConstraint(Sketcher.Constraint("Vertical", 0))
sketch16.addConstraint(Sketcher.Constraint("Horizontal", 1))
sketch16.addConstraint(Sketcher.Constraint("Vertical", 2))
sketch16.addConstraint(Sketcher.Constraint("Horizontal", 3))
sketch16.addConstraint(Sketcher.Constraint("DistanceX", 1, 1, 1, 2, 32.0))
sketch16.addConstraint(Sketcher.Constraint("DistanceY", 0, 1, 0, 2, 10.0))
sketch16.addConstraint(Sketcher.Constraint("DistanceX", 0, 2, -1, 1, 7.0))
sketch16.addConstraint(Sketcher.Constraint("DistanceY", 0, 2, -1, 1, 30.0))
pocket10 = doc.addObject("PartDesign::Pocket", "Pocket009")
body.addObject(pocket10)
pocket10.Profile = sketch16
pocket10.Length = 13
pocket10.Reversed = True

doc.recompute()
